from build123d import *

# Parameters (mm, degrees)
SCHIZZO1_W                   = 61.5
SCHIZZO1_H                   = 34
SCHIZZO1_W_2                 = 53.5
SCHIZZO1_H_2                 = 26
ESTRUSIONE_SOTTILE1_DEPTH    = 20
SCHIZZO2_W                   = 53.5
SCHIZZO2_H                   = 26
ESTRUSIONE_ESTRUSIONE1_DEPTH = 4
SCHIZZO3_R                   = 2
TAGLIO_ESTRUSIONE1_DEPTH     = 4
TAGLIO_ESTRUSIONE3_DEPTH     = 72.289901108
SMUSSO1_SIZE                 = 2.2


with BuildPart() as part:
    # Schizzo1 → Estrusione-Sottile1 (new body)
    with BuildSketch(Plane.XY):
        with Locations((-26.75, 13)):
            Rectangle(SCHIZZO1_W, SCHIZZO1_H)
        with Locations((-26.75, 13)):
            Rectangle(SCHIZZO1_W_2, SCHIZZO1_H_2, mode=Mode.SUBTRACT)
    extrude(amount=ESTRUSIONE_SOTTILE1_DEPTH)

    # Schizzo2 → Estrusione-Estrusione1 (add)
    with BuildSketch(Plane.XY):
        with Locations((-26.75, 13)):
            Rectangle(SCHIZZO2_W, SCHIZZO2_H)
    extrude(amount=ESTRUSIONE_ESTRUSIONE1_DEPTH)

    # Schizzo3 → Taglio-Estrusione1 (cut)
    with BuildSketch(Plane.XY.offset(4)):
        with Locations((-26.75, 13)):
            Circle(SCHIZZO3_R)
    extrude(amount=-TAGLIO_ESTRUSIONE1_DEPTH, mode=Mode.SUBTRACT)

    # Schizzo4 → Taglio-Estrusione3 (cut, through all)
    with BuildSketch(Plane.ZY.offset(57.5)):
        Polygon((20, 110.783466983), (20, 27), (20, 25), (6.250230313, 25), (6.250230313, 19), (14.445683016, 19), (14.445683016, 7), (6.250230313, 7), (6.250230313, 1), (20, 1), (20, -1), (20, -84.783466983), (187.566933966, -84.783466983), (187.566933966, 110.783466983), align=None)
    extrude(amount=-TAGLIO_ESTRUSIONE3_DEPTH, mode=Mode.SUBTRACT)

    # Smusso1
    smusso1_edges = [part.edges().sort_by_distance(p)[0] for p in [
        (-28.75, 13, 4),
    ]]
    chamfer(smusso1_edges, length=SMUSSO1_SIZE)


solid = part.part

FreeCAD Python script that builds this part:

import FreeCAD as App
import Part
import Sketcher

V = App.Vector


def edges_at(feature, points):
    """Names of the edges that pass closest to the given points."""
    edges = feature.Shape.Edges
    near = lambda p: min(range(len(edges)), key=lambda i: edges[i].distToShape(Part.Vertex(*p))[0])
    return sorted({f"Edge{near(p) + 1}" for p in points})

doc = App.newDocument("Part")
params = doc.addObject("Spreadsheet::Sheet", "Params")
for row, (alias, value) in enumerate([
    ("sketch1_height", "34 mm"),
    ("sketch1_height2", "26 mm"),
    ("sketch1_width", "61.5 mm"),
    ("sketch1_width2", "53.5 mm"),
    ("pad1_length", "20 mm"),
    ("sketch2_height", "26 mm"),
    ("sketch2_width", "53.5 mm"),
    ("pad2_length", "4 mm"),
    ("sketch3_diameter", "4 mm"),
    ("pocket1_length", "4 mm"),
    ("sketch4_width", "6 mm"),
    ("sketch4_width2", "12 mm"),
    ("chamfer_size", "2.2 mm"),
], start=1):
    params.set(f"A{row}", alias)
    params.set(f"B{row}", "=" + value)
    params.setAlias(f"B{row}", alias)

body = doc.addObject("PartDesign::Body", "Body")

sketch1 = doc.addObject("Sketcher::SketchObject", "Sketch")
body.addObject(sketch1)
sketch1.AttachmentSupport = (doc.XY_Plane, [""])
sketch1.MapMode = "FlatFace"
sketch1.addGeometry([
    Part.LineSegment(V(-58, 30, 0), V(-58, -4, 0)),
    Part.LineSegment(V(-58, -4, 0), V(4, -4, 0)),
    Part.LineSegment(V(4, -4, 0), V(4, 30, 0)),
    Part.LineSegment(V(4, 30, 0), V(-58, 30, 0)),
    Part.LineSegment(V(0, 0, 0), V(-54, 0, 0)),
    Part.LineSegment(V(-54, 0, 0), V(-54, 26, 0)),
    Part.LineSegment(V(-54, 26, 0), V(0, 26, 0)),
    Part.LineSegment(V(0, 26, 0), V(0, 0, 0)),
], False)
sketch1.addConstraint([
    Sketcher.Constraint("Coincident", 0, 2, 1, 1),
    Sketcher.Constraint("Coincident", 1, 2, 2, 1),
    Sketcher.Constraint("Coincident", 2, 2, 3, 1),
    Sketcher.Constraint("Coincident", 3, 2, 0, 1),
    Sketcher.Constraint("Coincident", 4, 2, 5, 1),
    Sketcher.Constraint("Coincident", 5, 2, 6, 1),
    Sketcher.Constraint("Coincident", 6, 2, 7, 1),
    Sketcher.Constraint("Coincident", 7, 2, 4, 1),
    Sketcher.Constraint("Vertical", 0),
    Sketcher.Constraint("Horizontal", 1),
    Sketcher.Constraint("Vertical", 2),
    Sketcher.Constraint("Horizontal", 3),
    Sketcher.Constraint("Horizontal", 4),
    Sketcher.Constraint("Vertical", 5),
    Sketcher.Constraint("Horizontal", 6),
    Sketcher.Constraint("Vertical", 7),
    Sketcher.Constraint("Coincident", 7, 2, -1, 1),
    Sketcher.Constraint("DistanceY", 0, 2, 0, 1, 34.0),
    Sketcher.Constraint("DistanceY", 5, 1, 5, 2, 26.0),
    Sketcher.Constraint("DistanceX", 1, 1, 1, 2, 61.5),
    Sketcher.Constraint("DistanceX", 4, 2, 4, 1, 53.5),
    Sketcher.Constraint("DistanceY", 0, 2, -1, 1, 4.0),
    Sketcher.Constraint("DistanceX", -1, 1, 1, 2, 4.0),
])
sketch1.setExpression("Constraints[17]", "Params.sketch1_height")
sketch1.setExpression("Constraints[18]", "Params.sketch1_height2")
sketch1.setExpression("Constraints[19]", "Params.sketch1_width")
sketch1.setExpression("Constraints[20]", "Params.sketch1_width2")
pad1 = doc.addObject("PartDesign::Pad", "Pad")
body.addObject(pad1)
pad1.Profile = sketch1
pad1.setExpression("Length", "Params.pad1_length")

sketch2 = doc.addObject("Sketcher::SketchObject", "Sketch001")
body.addObject(sketch2)
sketch2.AttachmentSupport = (doc.XY_Plane, [""])
sketch2.MapMode = "FlatFace"
sketch2.addGeometry([
    Part.LineSegment(V(-54, 26, 0), V(-54, 0, 0)),
    Part.LineSegment(V(-54, 0, 0), V(0, 0, 0)),
    Part.LineSegment(V(0, 0, 0), V(0, 26, 0)),
    Part.LineSegment(V(0, 26, 0), V(-54, 26, 0)),
], False)
sketch2.addConstraint([
    Sketcher.Constraint("Coincident", 0, 2, 1, 1),
    Sketcher.Constraint("Coincident", 1, 2, 2, 1),
    Sketcher.Constraint("Coincident", 2, 2, 3, 1),
    Sketcher.Constraint("Coincident", 3, 2, 0, 1),
    Sketcher.Constraint("Vertical", 0),
    Sketcher.Constraint("Horizontal", 1),
    Sketcher.Constraint("Vertical", 2),
    Sketcher.Constraint("Horizontal", 3),
    Sketcher.Constraint("Coincident", 1, 2, -1, 1),
    Sketcher.Constraint("DistanceY", 0, 2, 0, 1, 26.0),
    Sketcher.Constraint("DistanceX", 1, 1, 1, 2, 53.5),
])
sketch2.setExpression("Constraints[9]", "Params.sketch2_height")
sketch2.setExpression("Constraints[10]", "Params.sketch2_width")
pad2 = doc.addObject("PartDesign::Pad", "Pad001")
body.addObject(pad2)
pad2.Profile = sketch2
pad2.setExpression("Length", "Params.pad2_length")

sketch3 = doc.addObject("Sketcher::SketchObject", "Sketch002")
body.addObject(sketch3)
sketch3.AttachmentSupport = (doc.XY_Plane, [""])
sketch3.MapMode = "FlatFace"
sketch3.AttachmentOffset = App.Placement(V(0, 0, 4), App.Rotation())
sketch3.addGeometry(Part.Circle(V(-26.8, 13, 0), V(0, 0, 1), 2), False)
sketch3.addConstraint([
    Sketcher.Constraint("Diameter", 0, 4.0),
    Sketcher.Constraint("DistanceY", -1, 1, 0, 3, 13.0),
    Sketcher.Constraint("DistanceX", 0, 3, -1, 1, 26.75),
])
sketch3.setExpression("Constraints[0]", "Params.sketch3_diameter")
pocket1 = doc.addObject("PartDesign::Pocket", "Pocket")
body.addObject(pocket1)
pocket1.Profile = sketch3
pocket1.setExpression("Length", "Params.pocket1_length")

sketch4 = doc.addObject("Sketcher::SketchObject", "Sketch003")
body.addObject(sketch4)
sketch4.AttachmentSupport = (doc.YZ_Plane, [""])
sketch4.MapMode = "FlatFace"
sketch4.AttachmentOffset = App.Placement(V(0, 0, -57.5), App.Rotation())
sketch4.addGeometry([
    Part.LineSegment(V(111, 20, 0), V(25, 20, 0)),
    Part.LineSegment(V(25, 20, 0), V(25, 6, 0)),
    Part.LineSegment(V(25, 6, 0), V(19, 6, 0)),
    Part.LineSegment(V(19, 6, 0), V(19, 14, 0)),
    Part.LineSegment(V(19, 14, 0), V(7, 14, 0)),
    Part.LineSegment(V(7, 14, 0), V(7, 6, 0)),
    Part.LineSegment(V(7, 6, 0), V(1, 6, 0)),
    Part.LineSegment(V(1, 6, 0), V(1, 20, 0)),
    Part.LineSegment(V(1, 20, 0), V(-85, 20, 0)),
    Part.LineSegment(V(-85, 20, 0), V(-85, 188, 0)),
    Part.LineSegment(V(-85, 188, 0), V(111, 188, 0)),
    Part.LineSegment(V(111, 188, 0), V(111, 20, 0)),
], False)
sketch4.addConstraint([
    Sketcher.Constraint("Coincident", 0, 2, 1, 1),
    Sketcher.Constraint("Coincident", 1, 2, 2, 1),
    Sketcher.Constraint("Coincident", 2, 2, 3, 1),
    Sketcher.Constraint("Coincident", 3, 2, 4, 1),
    Sketcher.Constraint("Coincident", 4, 2, 5, 1),
    Sketcher.Constraint("Coincident", 5, 2, 6, 1),
    Sketcher.Constraint("Coincident", 6, 2, 7, 1),
    Sketcher.Constraint("Coincident", 7, 2, 8, 1),
    Sketcher.Constraint("Coincident", 8, 2, 9, 1),
    Sketcher.Constraint("Coincident", 9, 2, 10, 1),
    Sketcher.Constraint("Coincident", 10, 2, 11, 1),
    Sketcher.Constraint("Coincident", 11, 2, 0, 1),
    Sketcher.Constraint("Horizontal", 0),
    Sketcher.Constraint("Vertical", 1),
    Sketcher.Constraint("Horizontal", 2),
    Sketcher.Constraint("Vertical", 3),
    Sketcher.Constraint("Horizontal", 4),
    Sketcher.Constraint("Vertical", 5),
    Sketcher.Constraint("Horizontal", 6),
    Sketcher.Constraint("Vertical", 7),
    Sketcher.Constraint("Horizontal", 8),
    Sketcher.Constraint("Vertical", 9),
    Sketcher.Constraint("Horizontal", 10),
    Sketcher.Constraint("Vertical", 11),
    Sketcher.Constraint("Horizontal", 2, 2, 5, 2),
    Sketcher.Constraint("Horizontal", 0, 2, 7, 2),
    Sketcher.Constraint("Equal", 2, 6),
    Sketcher.Constraint("Equal", 0, 8),
    Sketcher.Constraint("DistanceX", 2, 2, 2, 1, 6.0),
    Sketcher.Constraint("DistanceX", 4, 2, 4, 1, 12.0),
    Sketcher.Constraint("DistanceX", -1, 1, 0, 2, 25.0),
    Sketcher.Constraint("DistanceY", -1, 1, 0, 2, 20.0),
    Sketcher.Constraint("DistanceY", 1, 2, 1, 1, 13.74977),
    Sketcher.Constraint("DistanceX", 0, 2, 0, 1, 85.783467),
    Sketcher.Constraint("DistanceY", 3, 1, 3, 2, 8.195453),
    Sketcher.Constraint("DistanceY", 9, 1, 9, 2, 167.566934),
])
sketch4.setExpression("Constraints[28]", "Params.sketch4_width")
sketch4.setExpression("Constraints[29]", "Params.sketch4_width2")
pocket2 = doc.addObject("PartDesign::Pocket", "Pocket001")
body.addObject(pocket2)
pocket2.Profile = sketch4
pocket2.Type = "ThroughAll"
pocket2.Reversed = True
doc.recompute()

chamfer = doc.addObject("PartDesign::Chamfer", "Chamfer")
body.addObject(chamfer)
chamfer.Base = (pocket2, edges_at(pocket2, [(-28.75, 13, 4)]))
chamfer.setExpression("Size", "Params.chamfer_size")

doc.recompute()
